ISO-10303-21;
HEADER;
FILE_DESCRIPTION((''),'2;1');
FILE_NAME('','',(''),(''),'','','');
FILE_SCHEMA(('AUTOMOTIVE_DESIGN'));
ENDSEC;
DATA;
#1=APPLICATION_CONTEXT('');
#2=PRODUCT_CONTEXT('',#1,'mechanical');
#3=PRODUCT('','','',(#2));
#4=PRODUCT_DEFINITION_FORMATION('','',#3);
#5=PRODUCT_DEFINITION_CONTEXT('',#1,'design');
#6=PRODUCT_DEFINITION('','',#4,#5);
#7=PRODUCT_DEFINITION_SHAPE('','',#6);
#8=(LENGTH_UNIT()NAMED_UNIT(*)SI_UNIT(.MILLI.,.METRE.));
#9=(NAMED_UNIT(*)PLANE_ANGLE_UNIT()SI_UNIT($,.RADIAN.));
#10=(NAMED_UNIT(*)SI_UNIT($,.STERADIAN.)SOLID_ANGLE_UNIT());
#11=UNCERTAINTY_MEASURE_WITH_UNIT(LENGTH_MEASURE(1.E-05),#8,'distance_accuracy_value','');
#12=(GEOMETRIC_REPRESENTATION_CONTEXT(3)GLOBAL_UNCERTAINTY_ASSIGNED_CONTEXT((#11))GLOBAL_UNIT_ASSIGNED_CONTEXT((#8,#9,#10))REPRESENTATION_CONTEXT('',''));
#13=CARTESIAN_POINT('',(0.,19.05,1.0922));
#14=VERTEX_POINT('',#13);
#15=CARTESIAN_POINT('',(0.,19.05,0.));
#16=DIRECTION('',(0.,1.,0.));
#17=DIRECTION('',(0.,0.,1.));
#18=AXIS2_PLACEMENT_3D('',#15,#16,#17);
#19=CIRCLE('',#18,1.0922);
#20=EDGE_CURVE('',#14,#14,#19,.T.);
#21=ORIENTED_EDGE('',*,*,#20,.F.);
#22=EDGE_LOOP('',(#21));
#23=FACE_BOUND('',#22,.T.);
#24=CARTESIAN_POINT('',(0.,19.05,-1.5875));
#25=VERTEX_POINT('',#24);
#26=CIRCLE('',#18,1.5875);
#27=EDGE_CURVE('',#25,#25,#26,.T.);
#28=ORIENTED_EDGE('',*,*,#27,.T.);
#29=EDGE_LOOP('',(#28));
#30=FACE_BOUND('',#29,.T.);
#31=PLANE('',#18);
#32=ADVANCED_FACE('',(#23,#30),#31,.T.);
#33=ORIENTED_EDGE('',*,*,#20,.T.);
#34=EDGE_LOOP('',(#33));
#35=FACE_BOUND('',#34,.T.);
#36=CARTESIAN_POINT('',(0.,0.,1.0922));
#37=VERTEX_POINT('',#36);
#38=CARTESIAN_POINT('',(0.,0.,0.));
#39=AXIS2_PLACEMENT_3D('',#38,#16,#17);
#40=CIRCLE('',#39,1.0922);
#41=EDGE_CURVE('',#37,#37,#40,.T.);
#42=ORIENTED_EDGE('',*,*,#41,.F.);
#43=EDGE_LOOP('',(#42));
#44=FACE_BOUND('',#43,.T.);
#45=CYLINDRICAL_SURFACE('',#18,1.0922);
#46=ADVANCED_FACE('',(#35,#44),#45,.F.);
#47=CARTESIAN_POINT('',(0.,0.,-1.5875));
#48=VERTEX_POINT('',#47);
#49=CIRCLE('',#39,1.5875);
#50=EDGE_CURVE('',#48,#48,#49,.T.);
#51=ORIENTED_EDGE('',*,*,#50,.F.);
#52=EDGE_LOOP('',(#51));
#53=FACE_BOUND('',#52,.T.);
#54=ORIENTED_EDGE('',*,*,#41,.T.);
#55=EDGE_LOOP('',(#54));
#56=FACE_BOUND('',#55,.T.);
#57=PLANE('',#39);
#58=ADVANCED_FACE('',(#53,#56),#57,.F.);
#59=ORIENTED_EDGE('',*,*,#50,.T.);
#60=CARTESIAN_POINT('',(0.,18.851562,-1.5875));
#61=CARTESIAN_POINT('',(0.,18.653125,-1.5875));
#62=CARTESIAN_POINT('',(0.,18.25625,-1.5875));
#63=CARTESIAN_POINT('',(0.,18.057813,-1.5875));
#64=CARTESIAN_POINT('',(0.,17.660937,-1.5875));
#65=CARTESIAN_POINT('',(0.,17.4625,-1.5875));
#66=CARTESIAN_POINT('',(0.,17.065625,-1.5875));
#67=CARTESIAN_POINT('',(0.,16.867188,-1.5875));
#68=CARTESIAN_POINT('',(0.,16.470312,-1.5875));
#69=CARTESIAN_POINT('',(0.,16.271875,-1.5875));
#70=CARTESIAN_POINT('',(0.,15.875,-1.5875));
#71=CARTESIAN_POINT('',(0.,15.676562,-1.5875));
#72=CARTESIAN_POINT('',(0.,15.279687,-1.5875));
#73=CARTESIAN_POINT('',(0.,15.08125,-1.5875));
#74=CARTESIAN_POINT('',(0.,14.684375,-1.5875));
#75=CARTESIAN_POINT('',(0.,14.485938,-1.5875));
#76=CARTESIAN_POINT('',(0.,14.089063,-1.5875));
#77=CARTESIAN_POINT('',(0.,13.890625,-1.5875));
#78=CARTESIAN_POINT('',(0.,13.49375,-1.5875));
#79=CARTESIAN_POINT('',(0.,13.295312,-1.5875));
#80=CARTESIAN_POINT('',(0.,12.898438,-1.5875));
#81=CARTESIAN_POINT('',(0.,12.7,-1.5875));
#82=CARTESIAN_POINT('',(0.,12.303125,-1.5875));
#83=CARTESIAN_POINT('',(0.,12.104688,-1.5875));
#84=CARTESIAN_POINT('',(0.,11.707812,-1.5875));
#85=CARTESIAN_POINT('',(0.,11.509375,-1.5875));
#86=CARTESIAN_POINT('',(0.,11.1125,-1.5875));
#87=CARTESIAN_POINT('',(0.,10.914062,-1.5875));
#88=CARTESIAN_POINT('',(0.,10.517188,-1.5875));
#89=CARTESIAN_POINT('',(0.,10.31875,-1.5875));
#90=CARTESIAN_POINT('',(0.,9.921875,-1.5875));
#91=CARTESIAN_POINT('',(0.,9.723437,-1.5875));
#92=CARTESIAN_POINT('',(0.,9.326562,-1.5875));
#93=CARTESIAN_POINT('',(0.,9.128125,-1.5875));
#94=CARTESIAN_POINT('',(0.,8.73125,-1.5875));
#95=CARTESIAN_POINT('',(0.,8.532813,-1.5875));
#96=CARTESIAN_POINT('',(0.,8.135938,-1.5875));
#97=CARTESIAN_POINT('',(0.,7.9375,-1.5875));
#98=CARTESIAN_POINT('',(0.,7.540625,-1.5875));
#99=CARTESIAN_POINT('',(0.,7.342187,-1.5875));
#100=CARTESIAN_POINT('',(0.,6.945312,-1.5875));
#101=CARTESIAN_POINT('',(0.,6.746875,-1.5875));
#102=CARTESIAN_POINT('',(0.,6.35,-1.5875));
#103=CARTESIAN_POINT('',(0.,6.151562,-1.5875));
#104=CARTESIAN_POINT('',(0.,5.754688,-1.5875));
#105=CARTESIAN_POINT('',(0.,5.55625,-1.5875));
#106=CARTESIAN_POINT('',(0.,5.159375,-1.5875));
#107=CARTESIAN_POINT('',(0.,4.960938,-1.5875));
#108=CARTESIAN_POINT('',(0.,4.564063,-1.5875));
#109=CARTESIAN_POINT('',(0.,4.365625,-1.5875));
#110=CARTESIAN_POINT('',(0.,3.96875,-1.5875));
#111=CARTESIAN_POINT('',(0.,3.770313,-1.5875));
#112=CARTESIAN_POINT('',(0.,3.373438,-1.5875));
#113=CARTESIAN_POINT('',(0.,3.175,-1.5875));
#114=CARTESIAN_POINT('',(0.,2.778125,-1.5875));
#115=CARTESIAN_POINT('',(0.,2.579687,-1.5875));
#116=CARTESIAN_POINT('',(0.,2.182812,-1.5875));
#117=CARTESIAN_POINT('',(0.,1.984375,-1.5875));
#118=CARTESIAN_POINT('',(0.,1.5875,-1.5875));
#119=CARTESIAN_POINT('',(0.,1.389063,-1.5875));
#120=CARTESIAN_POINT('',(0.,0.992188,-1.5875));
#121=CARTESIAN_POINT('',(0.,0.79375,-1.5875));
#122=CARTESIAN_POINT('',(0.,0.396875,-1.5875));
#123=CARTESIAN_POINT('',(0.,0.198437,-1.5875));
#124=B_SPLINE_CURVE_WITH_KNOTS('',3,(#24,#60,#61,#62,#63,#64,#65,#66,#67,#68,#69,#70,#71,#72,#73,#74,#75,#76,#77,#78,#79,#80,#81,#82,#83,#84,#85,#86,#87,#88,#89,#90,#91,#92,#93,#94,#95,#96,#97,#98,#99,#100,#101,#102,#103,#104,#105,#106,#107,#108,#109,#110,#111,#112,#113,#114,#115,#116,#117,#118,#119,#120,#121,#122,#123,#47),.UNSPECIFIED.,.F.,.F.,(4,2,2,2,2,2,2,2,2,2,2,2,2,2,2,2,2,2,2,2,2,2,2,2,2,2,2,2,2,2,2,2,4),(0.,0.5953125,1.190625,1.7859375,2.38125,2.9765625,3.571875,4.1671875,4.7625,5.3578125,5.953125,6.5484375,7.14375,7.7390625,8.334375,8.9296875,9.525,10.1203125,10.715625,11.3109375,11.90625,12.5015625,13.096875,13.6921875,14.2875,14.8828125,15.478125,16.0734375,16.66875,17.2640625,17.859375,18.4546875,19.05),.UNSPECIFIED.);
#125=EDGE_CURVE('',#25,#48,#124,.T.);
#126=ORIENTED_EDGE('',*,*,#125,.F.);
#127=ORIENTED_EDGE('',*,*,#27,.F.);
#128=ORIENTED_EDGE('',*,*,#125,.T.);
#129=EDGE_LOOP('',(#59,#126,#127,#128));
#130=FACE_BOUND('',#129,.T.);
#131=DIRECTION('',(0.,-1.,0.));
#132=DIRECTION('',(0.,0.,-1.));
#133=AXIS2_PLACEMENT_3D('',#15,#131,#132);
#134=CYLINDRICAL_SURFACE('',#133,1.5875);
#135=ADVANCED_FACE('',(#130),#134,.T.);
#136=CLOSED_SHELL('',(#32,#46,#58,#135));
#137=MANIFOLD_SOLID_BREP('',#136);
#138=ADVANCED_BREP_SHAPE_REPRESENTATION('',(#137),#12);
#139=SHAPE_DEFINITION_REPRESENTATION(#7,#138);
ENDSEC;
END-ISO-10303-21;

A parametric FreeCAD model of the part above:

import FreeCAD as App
import Part
import Sketcher

V = App.Vector
Q = App.Units.Quantity

doc = App.newDocument("Part")
body = doc.addObject("PartDesign::Body", "Body")

sketch1 = body.newObject("Sketcher::SketchObject", "Sketch")
sketch1.AttachmentSupport = (doc.getObject("XZ_Plane"), [""])
sketch1.MapMode = "FlatFace"
sketch1.addGeometry(Part.Circle(V(0, 0, 0), V(0, 0, 1), 1.6), False)
sketch1.addConstraint(Sketcher.Constraint("Coincident", 0, 3, -1, 1))
sketch1.addConstraint(Sketcher.Constraint("Diameter", 0, Q("0.125 in")))
pad1 = body.newObject("PartDesign::Pad", "Pad")
pad1.Profile = sketch1
pad1.Length = Q("0.75 in")
pad1.Reversed = True

sketch2 = body.newObject("Sketcher::SketchObject", "Sketch001")
sketch2.AttachmentSupport = (doc.getObject("XZ_Plane"), [""])
sketch2.MapMode = "FlatFace"
sketch2.AttachmentOffset = App.Placement(V(0, 0, -0.75 * 25.4), App.Rotation())
sketch2.addGeometry(Part.Circle(V(0, 0, 0), V(0, 0, 1), 1.1), False)
sketch2.addConstraint(Sketcher.Constraint("Coincident", 0, 3, -1, 1))
sketch2.addConstraint(Sketcher.Constraint("Diameter", 0, Q("0.086 in")))
doc.recompute()
hole = body.newObject("PartDesign::Hole", "Hole")
hole.Profile = sketch2
hole.ThreadType = "None"
hole.Diameter = Q("0.086 in")
hole.DepthType = "ThroughAll"
hole.Reversed = True

doc.recompute()
